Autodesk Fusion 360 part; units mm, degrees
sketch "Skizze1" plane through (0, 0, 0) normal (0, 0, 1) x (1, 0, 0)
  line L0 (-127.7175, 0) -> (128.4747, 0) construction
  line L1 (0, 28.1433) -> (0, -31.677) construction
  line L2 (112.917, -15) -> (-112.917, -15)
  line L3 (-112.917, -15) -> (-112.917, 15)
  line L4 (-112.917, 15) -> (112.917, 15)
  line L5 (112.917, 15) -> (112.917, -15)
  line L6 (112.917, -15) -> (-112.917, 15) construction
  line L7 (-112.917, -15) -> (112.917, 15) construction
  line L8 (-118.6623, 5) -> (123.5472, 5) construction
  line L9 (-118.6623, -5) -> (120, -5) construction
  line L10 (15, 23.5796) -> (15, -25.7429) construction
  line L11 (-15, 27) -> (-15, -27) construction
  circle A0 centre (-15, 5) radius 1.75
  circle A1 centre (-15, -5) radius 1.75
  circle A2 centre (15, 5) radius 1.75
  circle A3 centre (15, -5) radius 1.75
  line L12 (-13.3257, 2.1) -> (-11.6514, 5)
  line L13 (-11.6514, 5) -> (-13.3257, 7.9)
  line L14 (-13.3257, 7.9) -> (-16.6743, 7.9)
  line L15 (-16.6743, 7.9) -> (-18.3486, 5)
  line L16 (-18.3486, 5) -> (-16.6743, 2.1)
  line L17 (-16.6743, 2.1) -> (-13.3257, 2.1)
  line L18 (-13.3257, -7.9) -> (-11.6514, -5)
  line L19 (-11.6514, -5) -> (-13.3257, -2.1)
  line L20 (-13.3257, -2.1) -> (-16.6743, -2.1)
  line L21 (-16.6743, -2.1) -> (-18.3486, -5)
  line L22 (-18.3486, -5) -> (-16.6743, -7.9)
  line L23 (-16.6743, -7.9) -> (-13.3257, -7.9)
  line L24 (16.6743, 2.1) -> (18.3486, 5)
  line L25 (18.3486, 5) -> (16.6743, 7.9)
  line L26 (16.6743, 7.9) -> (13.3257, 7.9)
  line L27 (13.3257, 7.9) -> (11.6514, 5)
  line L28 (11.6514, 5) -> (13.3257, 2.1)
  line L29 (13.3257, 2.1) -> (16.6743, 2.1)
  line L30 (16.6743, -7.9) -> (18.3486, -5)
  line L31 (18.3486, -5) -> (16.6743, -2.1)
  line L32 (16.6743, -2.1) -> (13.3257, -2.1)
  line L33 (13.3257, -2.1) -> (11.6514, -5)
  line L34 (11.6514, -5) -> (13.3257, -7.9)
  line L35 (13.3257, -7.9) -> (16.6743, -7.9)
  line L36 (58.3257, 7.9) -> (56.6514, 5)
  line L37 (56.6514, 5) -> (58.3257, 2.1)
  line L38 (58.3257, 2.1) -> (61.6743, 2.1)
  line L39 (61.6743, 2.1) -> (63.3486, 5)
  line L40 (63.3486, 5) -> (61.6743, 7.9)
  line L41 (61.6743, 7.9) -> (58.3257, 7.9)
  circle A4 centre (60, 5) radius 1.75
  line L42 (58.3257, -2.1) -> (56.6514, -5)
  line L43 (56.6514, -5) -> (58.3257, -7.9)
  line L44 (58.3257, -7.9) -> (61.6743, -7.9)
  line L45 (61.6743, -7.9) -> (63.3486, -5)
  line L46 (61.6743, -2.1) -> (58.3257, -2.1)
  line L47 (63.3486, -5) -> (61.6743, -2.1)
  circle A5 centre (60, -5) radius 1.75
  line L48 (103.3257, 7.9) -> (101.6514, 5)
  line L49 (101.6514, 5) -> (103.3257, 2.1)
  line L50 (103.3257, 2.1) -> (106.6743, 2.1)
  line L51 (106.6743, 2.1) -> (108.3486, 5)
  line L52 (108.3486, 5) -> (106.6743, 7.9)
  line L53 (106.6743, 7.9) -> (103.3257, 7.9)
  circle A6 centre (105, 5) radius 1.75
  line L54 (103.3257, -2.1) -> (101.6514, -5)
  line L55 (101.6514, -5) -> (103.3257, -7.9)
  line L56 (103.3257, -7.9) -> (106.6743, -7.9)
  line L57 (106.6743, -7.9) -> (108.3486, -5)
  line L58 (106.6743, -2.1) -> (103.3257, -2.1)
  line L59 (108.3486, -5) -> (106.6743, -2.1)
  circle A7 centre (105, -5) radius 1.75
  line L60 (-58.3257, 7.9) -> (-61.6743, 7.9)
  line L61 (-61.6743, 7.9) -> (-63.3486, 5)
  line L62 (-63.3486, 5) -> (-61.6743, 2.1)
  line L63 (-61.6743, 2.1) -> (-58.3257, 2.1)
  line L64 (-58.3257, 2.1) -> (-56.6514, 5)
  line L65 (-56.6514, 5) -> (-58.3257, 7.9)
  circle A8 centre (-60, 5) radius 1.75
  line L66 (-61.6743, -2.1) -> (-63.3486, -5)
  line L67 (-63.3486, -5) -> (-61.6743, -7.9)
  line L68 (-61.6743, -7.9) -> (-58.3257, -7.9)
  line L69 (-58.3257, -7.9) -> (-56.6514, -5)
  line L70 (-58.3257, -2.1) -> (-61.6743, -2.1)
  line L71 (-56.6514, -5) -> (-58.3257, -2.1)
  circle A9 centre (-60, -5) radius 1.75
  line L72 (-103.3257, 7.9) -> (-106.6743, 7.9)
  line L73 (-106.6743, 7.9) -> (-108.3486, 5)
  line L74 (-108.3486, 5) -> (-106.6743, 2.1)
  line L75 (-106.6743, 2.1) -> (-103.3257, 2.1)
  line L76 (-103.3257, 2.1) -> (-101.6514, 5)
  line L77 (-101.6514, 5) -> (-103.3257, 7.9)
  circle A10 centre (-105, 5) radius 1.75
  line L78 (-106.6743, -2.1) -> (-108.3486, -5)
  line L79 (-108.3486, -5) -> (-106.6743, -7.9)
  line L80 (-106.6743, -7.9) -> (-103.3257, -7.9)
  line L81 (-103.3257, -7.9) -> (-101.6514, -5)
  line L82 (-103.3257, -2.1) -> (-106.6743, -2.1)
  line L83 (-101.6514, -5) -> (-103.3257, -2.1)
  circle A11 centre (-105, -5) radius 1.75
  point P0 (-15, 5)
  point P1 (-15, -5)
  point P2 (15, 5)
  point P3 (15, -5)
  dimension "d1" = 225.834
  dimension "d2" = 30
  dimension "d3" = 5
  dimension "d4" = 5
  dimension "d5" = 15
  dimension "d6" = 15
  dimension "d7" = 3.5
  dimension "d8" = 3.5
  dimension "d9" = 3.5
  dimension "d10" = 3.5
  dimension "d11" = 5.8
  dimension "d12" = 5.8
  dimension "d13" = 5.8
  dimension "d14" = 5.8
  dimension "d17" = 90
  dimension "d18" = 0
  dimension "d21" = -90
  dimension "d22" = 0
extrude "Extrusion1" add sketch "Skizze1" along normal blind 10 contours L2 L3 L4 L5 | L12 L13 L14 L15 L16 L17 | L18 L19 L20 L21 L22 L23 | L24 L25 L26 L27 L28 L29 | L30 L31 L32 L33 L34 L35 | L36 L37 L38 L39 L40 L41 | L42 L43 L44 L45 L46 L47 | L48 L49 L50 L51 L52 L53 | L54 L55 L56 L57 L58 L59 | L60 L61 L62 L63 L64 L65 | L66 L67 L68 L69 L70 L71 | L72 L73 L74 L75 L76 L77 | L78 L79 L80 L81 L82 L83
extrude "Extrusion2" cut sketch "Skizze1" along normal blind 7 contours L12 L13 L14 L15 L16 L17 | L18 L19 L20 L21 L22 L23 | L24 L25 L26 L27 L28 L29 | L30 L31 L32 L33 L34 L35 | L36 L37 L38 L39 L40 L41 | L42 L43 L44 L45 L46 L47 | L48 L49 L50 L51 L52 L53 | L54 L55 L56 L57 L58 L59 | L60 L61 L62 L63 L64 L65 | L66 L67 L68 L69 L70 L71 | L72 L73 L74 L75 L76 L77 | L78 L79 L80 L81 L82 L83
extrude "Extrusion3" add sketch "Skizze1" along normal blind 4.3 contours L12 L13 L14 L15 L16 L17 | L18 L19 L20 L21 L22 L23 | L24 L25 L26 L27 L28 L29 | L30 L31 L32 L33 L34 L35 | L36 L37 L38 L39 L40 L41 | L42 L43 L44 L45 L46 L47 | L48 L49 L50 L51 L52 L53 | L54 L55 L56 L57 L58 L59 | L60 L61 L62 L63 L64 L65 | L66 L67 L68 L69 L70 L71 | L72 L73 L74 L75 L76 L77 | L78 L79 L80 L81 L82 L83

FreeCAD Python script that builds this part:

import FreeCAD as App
import Part
import Sketcher
Q = App.Units.Quantity

doc = App.newDocument("Part")
body = doc.addObject("PartDesign::Body", "Body")

# Sketch on XY plane
sketch1 = body.newObject("Sketcher::SketchObject", "Sketch")
sketch1.AttachmentSupport = (doc.getObject("XY_Plane"), [""])
sketch1.MapMode = "FlatFace"
sketch1.addGeometry([
    Part.LineSegment(App.Vector(-112.917, -15, 0), App.Vector(112.917, -15, 0)),  # 0
    Part.LineSegment(App.Vector(112.917, -15, 0), App.Vector(112.917, 15, 0)),  # 1
    Part.LineSegment(App.Vector(112.917, 15, 0), App.Vector(-112.917, 15, 0)),  # 2
    Part.LineSegment(App.Vector(-112.917, 15, 0), App.Vector(-112.917, -15, 0)),  # 3
    Part.Circle(App.Vector(-105, -5, 0), App.Vector(0, 0, 1), 1.75),  # 4
    Part.Circle(App.Vector(-60, -5, 0), App.Vector(0, 0, 1), 1.75),  # 5
    Part.Circle(App.Vector(-15, -5, 0), App.Vector(0, 0, 1), 1.75),  # 6
    Part.Circle(App.Vector(15, -5, 0), App.Vector(0, 0, 1), 1.75),  # 7
    Part.Circle(App.Vector(60, -5, 0), App.Vector(0, 0, 1), 1.75),  # 8
    Part.Circle(App.Vector(105, -5, 0), App.Vector(0, 0, 1), 1.75),  # 9
    Part.Circle(App.Vector(-105, 5, 0), App.Vector(0, 0, 1), 1.75),  # 10
    Part.Circle(App.Vector(-60, 5, 0), App.Vector(0, 0, 1), 1.75),  # 11
    Part.Circle(App.Vector(-15, 5, 0), App.Vector(0, 0, 1), 1.75),  # 12
    Part.Circle(App.Vector(15, 5, 0), App.Vector(0, 0, 1), 1.75),  # 13
    Part.Circle(App.Vector(60, 5, 0), App.Vector(0, 0, 1), 1.75),  # 14
    Part.Circle(App.Vector(105, 5, 0), App.Vector(0, 0, 1), 1.75),  # 15
], False)
sketch1.addConstraint([
    Sketcher.Constraint("Coincident", 0, 2, 1, 1),
    Sketcher.Constraint("Coincident", 1, 2, 2, 1),
    Sketcher.Constraint("Coincident", 2, 2, 3, 1),
    Sketcher.Constraint("Coincident", 3, 2, 0, 1),
    Sketcher.Constraint("Horizontal", 0),
    Sketcher.Constraint("Vertical", 1),
    Sketcher.Constraint("Horizontal", 2),
    Sketcher.Constraint("Vertical", 3),
    Sketcher.Constraint("Equal", 4, 5),
    Sketcher.Constraint("Equal", 5, 6),
    Sketcher.Constraint("Equal", 6, 7),
    Sketcher.Constraint("Equal", 7, 8),
    Sketcher.Constraint("Equal", 8, 9),
    Sketcher.Constraint("Equal", 9, 10),
    Sketcher.Constraint("Equal", 10, 11),
    Sketcher.Constraint("Equal", 11, 12),
    Sketcher.Constraint("Equal", 12, 13),
    Sketcher.Constraint("Equal", 13, 14),
    Sketcher.Constraint("Equal", 14, 15),
    Sketcher.Constraint("Symmetric", 9, 3, 10, 3, -1, 1),
    Sketcher.Constraint("Symmetric", 8, 3, 11, 3, -1, 1),
    Sketcher.Constraint("Symmetric", 7, 3, 12, 3, -1, 1),
    Sketcher.Constraint("Symmetric", 6, 3, 13, 3, -1, 1),
    Sketcher.Constraint("Symmetric", 5, 3, 14, 3, -1, 1),
    Sketcher.Constraint("Symmetric", 4, 3, 15, 3, -1, 1),
    Sketcher.Constraint("Symmetric", 0, 2, 2, 2, -1, 1),
    Sketcher.Constraint("Symmetric", 6, 3, 7, 3, -2),
    Sketcher.Constraint("Symmetric", 5, 3, 8, 3, -2),
    Sketcher.Constraint("Symmetric", 4, 3, 9, 3, -2),
    Sketcher.Constraint("Horizontal", 4, 3, 5, 3),
    Sketcher.Constraint("Horizontal", 5, 3, 6, 3),
    Sketcher.Constraint("Diameter", 4, Q("3.5 mm")),
    Sketcher.Constraint("DistanceY", 1, 1, 1, 2, Q("30 mm")),
    Sketcher.Constraint("DistanceY", 4, 3, -1, 1, Q("5 mm")),
    Sketcher.Constraint("DistanceX", 6, 3, -1, 1, Q("15 mm")),
    Sketcher.Constraint("DistanceX", 4, 3, 6, 3, Q("90 mm")),
    Sketcher.Constraint("DistanceX", 0, 1, 0, 2, Q("225.834 mm")),
    Sketcher.Constraint("DistanceX", 5, 3, -1, 1, Q("60 mm")),
])
pad1 = body.newObject("PartDesign::Pad", "Pad")
pad1.Profile = sketch1
pad1.Length = 10

# Sketch on XY plane
sketch2 = body.newObject("Sketcher::SketchObject", "Sketch001")
sketch2.AttachmentSupport = (doc.getObject("XY_Plane"), [""])
sketch2.MapMode = "FlatFace"
sketch2.addGeometry([
    Part.LineSegment(App.Vector(-16.6743, 2.1, 0), App.Vector(-13.3257, 2.1, 0)),  # 0
    Part.LineSegment(App.Vector(-13.3257, 2.1, 0), App.Vector(-11.6514, 5, 0)),  # 1
    Part.LineSegment(App.Vector(-11.6514, 5, 0), App.Vector(-13.3257, 7.9, 0)),  # 2
    Part.LineSegment(App.Vector(-13.3257, 7.9, 0), App.Vector(-16.6743, 7.9, 0)),  # 3
    Part.LineSegment(App.Vector(-16.6743, 7.9, 0), App.Vector(-18.3486, 5, 0)),  # 4
    Part.LineSegment(App.Vector(-18.3486, 5, 0), App.Vector(-16.6743, 2.1, 0)),  # 5
    Part.Circle(App.Vector(-15, 5, 0), App.Vector(0, 0, 1), 1.75),  # 6
    Part.LineSegment(App.Vector(-16.6743, -7.9, 0), App.Vector(-13.3257, -7.9, 0)),  # 7
    Part.LineSegment(App.Vector(-13.3257, -7.9, 0), App.Vector(-11.6514, -5, 0)),  # 8
    Part.LineSegment(App.Vector(-11.6514, -5, 0), App.Vector(-13.3257, -2.1, 0)),  # 9
    Part.LineSegment(App.Vector(-13.3257, -2.1, 0), App.Vector(-16.6743, -2.1, 0)),  # 10
    Part.LineSegment(App.Vector(-16.6743, -2.1, 0), App.Vector(-18.3486, -5, 0)),  # 11
    Part.LineSegment(App.Vector(-18.3486, -5, 0), App.Vector(-16.6743, -7.9, 0)),  # 12
    Part.Circle(App.Vector(-15, -5, 0), App.Vector(0, 0, 1), 1.75),  # 13
    Part.LineSegment(App.Vector(13.3257, 2.1, 0), App.Vector(16.6743, 2.1, 0)),  # 14
    Part.LineSegment(App.Vector(16.6743, 2.1, 0), App.Vector(18.3486, 5, 0)),  # 15
    Part.LineSegment(App.Vector(18.3486, 5, 0), App.Vector(16.6743, 7.9, 0)),  # 16
    Part.LineSegment(App.Vector(16.6743, 7.9, 0), App.Vector(13.3257, 7.9, 0)),  # 17
    Part.LineSegment(App.Vector(13.3257, 7.9, 0), App.Vector(11.6514, 5, 0)),  # 18
    Part.LineSegment(App.Vector(11.6514, 5, 0), App.Vector(13.3257, 2.1, 0)),  # 19
    Part.Circle(App.Vector(15, 5, 0), App.Vector(0, 0, 1), 1.75),  # 20
    Part.LineSegment(App.Vector(13.3257, -7.9, 0), App.Vector(16.6743, -7.9, 0)),  # 21
    Part.LineSegment(App.Vector(16.6743, -7.9, 0), App.Vector(18.3486, -5, 0)),  # 22
    Part.LineSegment(App.Vector(18.3486, -5, 0), App.Vector(16.6743, -2.1, 0)),  # 23
    Part.LineSegment(App.Vector(16.6743, -2.1, 0), App.Vector(13.3257, -2.1, 0)),  # 24
    Part.LineSegment(App.Vector(13.3257, -2.1, 0), App.Vector(11.6514, -5, 0)),  # 25
    Part.LineSegment(App.Vector(11.6514, -5, 0), App.Vector(13.3257, -7.9, 0)),  # 26
    Part.Circle(App.Vector(15, -5, 0), App.Vector(0, 0, 1), 1.75),  # 27
    Part.LineSegment(App.Vector(61.6743, 7.9, 0), App.Vector(58.3257, 7.9, 0)),  # 28
    Part.LineSegment(App.Vector(58.3257, 7.9, 0), App.Vector(56.6514, 5, 0)),  # 29
    Part.LineSegment(App.Vector(56.6514, 5, 0), App.Vector(58.3257, 2.1, 0)),  # 30
    Part.LineSegment(App.Vector(58.3257, 2.1, 0), App.Vector(61.6743, 2.1, 0)),  # 31
    Part.LineSegment(App.Vector(61.6743, 2.1, 0), App.Vector(63.3486, 5, 0)),  # 32
    Part.LineSegment(App.Vector(63.3486, 5, 0), App.Vector(61.6743, 7.9, 0)),  # 33
    Part.Circle(App.Vector(60, 5, 0), App.Vector(0, 0, 1), 1.75),  # 34
    Part.LineSegment(App.Vector(61.6743, -2.1, 0), App.Vector(58.3257, -2.1, 0)),  # 35
    Part.LineSegment(App.Vector(58.3257, -2.1, 0), App.Vector(56.6514, -5, 0)),  # 36
    Part.LineSegment(App.Vector(56.6514, -5, 0), App.Vector(58.3257, -7.9, 0)),  # 37
    Part.LineSegment(App.Vector(58.3257, -7.9, 0), App.Vector(61.6743, -7.9, 0)),  # 38
    Part.LineSegment(App.Vector(61.6743, -7.9, 0), App.Vector(63.3486, -5, 0)),  # 39
    Part.LineSegment(App.Vector(63.3486, -5, 0), App.Vector(61.6743, -2.1, 0)),  # 40
    Part.Circle(App.Vector(60, -5, 0), App.Vector(0, 0, 1), 1.75),  # 41
    Part.LineSegment(App.Vector(106.6743, 7.9, 0), App.Vector(103.3257, 7.9, 0)),  # 42
    Part.LineSegment(App.Vector(103.3257, 7.9, 0), App.Vector(101.6514, 5, 0)),  # 43
    Part.LineSegment(App.Vector(101.6514, 5, 0), App.Vector(103.3257, 2.1, 0)),  # 44
    Part.LineSegment(App.Vector(103.3257, 2.1, 0), App.Vector(106.6743, 2.1, 0)),  # 45
    Part.LineSegment(App.Vector(106.6743, 2.1, 0), App.Vector(108.3486, 5, 0)),  # 46
    Part.LineSegment(App.Vector(108.3486, 5, 0), App.Vector(106.6743, 7.9, 0)),  # 47
    Part.Circle(App.Vector(105, 5, 0), App.Vector(0, 0, 1), 1.75),  # 48
    Part.LineSegment(App.Vector(106.6743, -2.1, 0), App.Vector(103.3257, -2.1, 0)),  # 49
    Part.LineSegment(App.Vector(103.3257, -2.1, 0), App.Vector(101.6514, -5, 0)),  # 50
    Part.LineSegment(App.Vector(101.6514, -5, 0), App.Vector(103.3257, -7.9, 0)),  # 51
    Part.LineSegment(App.Vector(103.3257, -7.9, 0), App.Vector(106.6743, -7.9, 0)),  # 52
    Part.LineSegment(App.Vector(106.6743, -7.9, 0), App.Vector(108.3486, -5, 0)),  # 53
    Part.LineSegment(App.Vector(108.3486, -5, 0), App.Vector(106.6743, -2.1, 0)),  # 54
    Part.Circle(App.Vector(105, -5, 0), App.Vector(0, 0, 1), 1.75),  # 55
    Part.LineSegment(App.Vector(-56.6514, 5, 0), App.Vector(-58.3257, 7.9, 0)),  # 56
    Part.LineSegment(App.Vector(-58.3257, 7.9, 0), App.Vector(-61.6743, 7.9, 0)),  # 57
    Part.LineSegment(App.Vector(-61.6743, 7.9, 0), App.Vector(-63.3486, 5, 0)),  # 58
    Part.LineSegment(App.Vector(-63.3486, 5, 0), App.Vector(-61.6743, 2.1, 0)),  # 59
    Part.LineSegment(App.Vector(-61.6743, 2.1, 0), App.Vector(-58.3257, 2.1, 0)),  # 60
    Part.LineSegment(App.Vector(-58.3257, 2.1, 0), App.Vector(-56.6514, 5, 0)),  # 61
    Part.Circle(App.Vector(-60, 5, 0), App.Vector(0, 0, 1), 1.75),  # 62
    Part.LineSegment(App.Vector(-58.3257, -2.1, 0), App.Vector(-61.6743, -2.1, 0)),  # 63
    Part.LineSegment(App.Vector(-61.6743, -2.1, 0), App.Vector(-63.3486, -5, 0)),  # 64
    Part.LineSegment(App.Vector(-63.3486, -5, 0), App.Vector(-61.6743, -7.9, 0)),  # 65
    Part.LineSegment(App.Vector(-61.6743, -7.9, 0), App.Vector(-58.3257, -7.9, 0)),  # 66
    Part.LineSegment(App.Vector(-58.3257, -7.9, 0), App.Vector(-56.6514, -5, 0)),  # 67
    Part.LineSegment(App.Vector(-56.6514, -5, 0), App.Vector(-58.3257, -2.1, 0)),  # 68
    Part.Circle(App.Vector(-60, -5, 0), App.Vector(0, 0, 1), 1.75),  # 69
    Part.LineSegment(App.Vector(-101.6514, 5, 0), App.Vector(-103.3257, 7.9, 0)),  # 70
    Part.LineSegment(App.Vector(-103.3257, 7.9, 0), App.Vector(-106.6743, 7.9, 0)),  # 71
    Part.LineSegment(App.Vector(-106.6743, 7.9, 0), App.Vector(-108.3486, 5, 0)),  # 72
    Part.LineSegment(App.Vector(-108.3486, 5, 0), App.Vector(-106.6743, 2.1, 0)),  # 73
    Part.LineSegment(App.Vector(-106.6743, 2.1, 0), App.Vector(-103.3257, 2.1, 0)),  # 74
    Part.LineSegment(App.Vector(-103.3257, 2.1, 0), App.Vector(-101.6514, 5, 0)),  # 75
    Part.Circle(App.Vector(-105, 5, 0), App.Vector(0, 0, 1), 1.75),  # 76
    Part.LineSegment(App.Vector(-103.3257, -2.1, 0), App.Vector(-106.6743, -2.1, 0)),  # 77
    Part.LineSegment(App.Vector(-106.6743, -2.1, 0), App.Vector(-108.3486, -5, 0)),  # 78
    Part.LineSegment(App.Vector(-108.3486, -5, 0), App.Vector(-106.6743, -7.9, 0)),  # 79
    Part.LineSegment(App.Vector(-106.6743, -7.9, 0), App.Vector(-103.3257, -7.9, 0)),  # 80
    Part.LineSegment(App.Vector(-103.3257, -7.9, 0), App.Vector(-101.6514, -5, 0)),  # 81
    Part.LineSegment(App.Vector(-101.6514, -5, 0), App.Vector(-103.3257, -2.1, 0)),  # 82
    Part.Circle(App.Vector(-105, -5, 0), App.Vector(0, 0, 1), 1.75),  # 83
], False)
sketch2.addConstraint([
    Sketcher.Constraint("Coincident", 0, 2, 1, 1),
    Sketcher.Constraint("Coincident", 1, 2, 2, 1),
    Sketcher.Constraint("Coincident", 2, 2, 3, 1),
    Sketcher.Constraint("Coincident", 3, 2, 4, 1),
    Sketcher.Constraint("Coincident", 4, 2, 5, 1),
    Sketcher.Constraint("Coincident", 5, 2, 0, 1),
    Sketcher.Constraint("Coincident", 7, 2, 8, 1),
    Sketcher.Constraint("Coincident", 8, 2, 9, 1),
    Sketcher.Constraint("Coincident", 9, 2, 10, 1),
    Sketcher.Constraint("Coincident", 10, 2, 11, 1),
    Sketcher.Constraint("Coincident", 11, 2, 12, 1),
    Sketcher.Constraint("Coincident", 12, 2, 7, 1),
    Sketcher.Constraint("Coincident", 14, 2, 15, 1),
    Sketcher.Constraint("Coincident", 15, 2, 16, 1),
    Sketcher.Constraint("Coincident", 16, 2, 17, 1),
    Sketcher.Constraint("Coincident", 17, 2, 18, 1),
    Sketcher.Constraint("Coincident", 18, 2, 19, 1),
    Sketcher.Constraint("Coincident", 19, 2, 14, 1),
    Sketcher.Constraint("Coincident", 21, 2, 22, 1),
    Sketcher.Constraint("Coincident", 22, 2, 23, 1),
    Sketcher.Constraint("Coincident", 23, 2, 24, 1),
    Sketcher.Constraint("Coincident", 24, 2, 25, 1),
    Sketcher.Constraint("Coincident", 25, 2, 26, 1),
    Sketcher.Constraint("Coincident", 26, 2, 21, 1),
    Sketcher.Constraint("Coincident", 28, 2, 29, 1),
    Sketcher.Constraint("Coincident", 29, 2, 30, 1),
    Sketcher.Constraint("Coincident", 30, 2, 31, 1),
    Sketcher.Constraint("Coincident", 31, 2, 32, 1),
    Sketcher.Constraint("Coincident", 32, 2, 33, 1),
    Sketcher.Constraint("Coincident", 33, 2, 28, 1),
    Sketcher.Constraint("Coincident", 35, 2, 36, 1),
    Sketcher.Constraint("Coincident", 36, 2, 37, 1),
    Sketcher.Constraint("Coincident", 37, 2, 38, 1),
    Sketcher.Constraint("Coincident", 38, 2, 39, 1),
    Sketcher.Constraint("Coincident", 39, 2, 40, 1),
    Sketcher.Constraint("Coincident", 40, 2, 35, 1),
    Sketcher.Constraint("Coincident", 42, 2, 43, 1),
    Sketcher.Constraint("Coincident", 43, 2, 44, 1),
    Sketcher.Constraint("Coincident", 44, 2, 45, 1),
    Sketcher.Constraint("Coincident", 45, 2, 46, 1),
    Sketcher.Constraint("Coincident", 46, 2, 47, 1),
    Sketcher.Constraint("Coincident", 47, 2, 42, 1),
    Sketcher.Constraint("Coincident", 49, 2, 50, 1),
    Sketcher.Constraint("Coincident", 50, 2, 51, 1),
    Sketcher.Constraint("Coincident", 51, 2, 52, 1),
    Sketcher.Constraint("Coincident", 52, 2, 53, 1),
    Sketcher.Constraint("Coincident", 53, 2, 54, 1),
    Sketcher.Constraint("Coincident", 54, 2, 49, 1),
    Sketcher.Constraint("Coincident", 56, 2, 57, 1),
    Sketcher.Constraint("Coincident", 57, 2, 58, 1),
    Sketcher.Constraint("Coincident", 58, 2, 59, 1),
    Sketcher.Constraint("Coincident", 59, 2, 60, 1),
    Sketcher.Constraint("Coincident", 60, 2, 61, 1),
    Sketcher.Constraint("Coincident", 61, 2, 56, 1),
    Sketcher.Constraint("Coincident", 63, 2, 64, 1),
    Sketcher.Constraint("Coincident", 64, 2, 65, 1),
    Sketcher.Constraint("Coincident", 65, 2, 66, 1),
    Sketcher.Constraint("Coincident", 66, 2, 67, 1),
    Sketcher.Constraint("Coincident", 67, 2, 68, 1),
    Sketcher.Constraint("Coincident", 68, 2, 63, 1),
    Sketcher.Constraint("Coincident", 70, 2, 71, 1),
    Sketcher.Constraint("Coincident", 71, 2, 72, 1),
    Sketcher.Constraint("Coincident", 72, 2, 73, 1),
    Sketcher.Constraint("Coincident", 73, 2, 74, 1),
    Sketcher.Constraint("Coincident", 74, 2, 75, 1),
    Sketcher.Constraint("Coincident", 75, 2, 70, 1),
    Sketcher.Constraint("Coincident", 77, 2, 78, 1),
    Sketcher.Constraint("Coincident", 78, 2, 79, 1),
    Sketcher.Constraint("Coincident", 79, 2, 80, 1),
    Sketcher.Constraint("Coincident", 80, 2, 81, 1),
    Sketcher.Constraint("Coincident", 81, 2, 82, 1),
    Sketcher.Constraint("Coincident", 82, 2, 77, 1),
    Sketcher.Constraint("Horizontal", 0),
    Sketcher.Constraint("Horizontal", 3),
    Sketcher.Constraint("Horizontal", 7),
    Sketcher.Constraint("Horizontal", 10),
    Sketcher.Constraint("Horizontal", 14),
    Sketcher.Constraint("Horizontal", 17),
    Sketcher.Constraint("Horizontal", 21),
    Sketcher.Constraint("Horizontal", 24),
    Sketcher.Constraint("Horizontal", 28),
    Sketcher.Constraint("Horizontal", 31),
    Sketcher.Constraint("Horizontal", 35),
    Sketcher.Constraint("Horizontal", 38),
    Sketcher.Constraint("Horizontal", 42),
    Sketcher.Constraint("Horizontal", 45),
    Sketcher.Constraint("Horizontal", 49),
    Sketcher.Constraint("Horizontal", 52),
    Sketcher.Constraint("Horizontal", 57),
    Sketcher.Constraint("Horizontal", 60),
    Sketcher.Constraint("Horizontal", 63),
    Sketcher.Constraint("Horizontal", 66),
    Sketcher.Constraint("Horizontal", 71),
    Sketcher.Constraint("Horizontal", 74),
    Sketcher.Constraint("Horizontal", 77),
    Sketcher.Constraint("Horizontal", 80),
    Sketcher.Constraint("Equal", 6, 13),
    Sketcher.Constraint("Equal", 13, 20),
    Sketcher.Constraint("Equal", 20, 27),
    Sketcher.Constraint("Equal", 27, 34),
    Sketcher.Constraint("Equal", 34, 41),
    Sketcher.Constraint("Equal", 41, 48),
    Sketcher.Constraint("Equal", 48, 55),
    Sketcher.Constraint("Equal", 55, 62),
    Sketcher.Constraint("Equal", 62, 69),
    Sketcher.Constraint("Equal", 69, 76),
    Sketcher.Constraint("Equal", 76, 83),
    Sketcher.Constraint("Symmetric", 13, 3, 20, 3, -1, 1),
    Sketcher.Constraint("Symmetric", 6, 3, 27, 3, -1, 1),
    Sketcher.Constraint("Symmetric", 41, 3, 62, 3, -1, 1),
    Sketcher.Constraint("Symmetric", 34, 3, 69, 3, -1, 1),
    Sketcher.Constraint("Symmetric", 55, 3, 76, 3, -1, 1),
    Sketcher.Constraint("Symmetric", 48, 3, 83, 3, -1, 1),
    Sketcher.Constraint("Symmetric", 10, 2, 14, 2, -1, 1),
    Sketcher.Constraint("Symmetric", 11, 2, 15, 2, -1, 1),
    Sketcher.Constraint("Symmetric", 12, 2, 16, 2, -1, 1),
    Sketcher.Constraint("Symmetric", 8, 2, 18, 2, -1, 1),
    Sketcher.Constraint("Symmetric", 3, 2, 21, 2, -1, 1),
    Sketcher.Constraint("Symmetric", 4, 2, 22, 2, -1, 1),
    Sketcher.Constraint("Symmetric", 5, 2, 23, 2, -1, 1),
    Sketcher.Constraint("Symmetric", 1, 2, 25, 2, -1, 1),
    Sketcher.Constraint("Symmetric", 37, 2, 56, 2, -1, 1),
    Sketcher.Constraint("Symmetric", 39, 2, 58, 2, -1, 1),
    Sketcher.Constraint("Symmetric", 40, 2, 59, 2, -1, 1),
    Sketcher.Constraint("Symmetric", 36, 2, 61, 2, -1, 1),
    Sketcher.Constraint("Symmetric", 31, 2, 63, 2, -1, 1),
    Sketcher.Constraint("Symmetric", 32, 2, 64, 2, -1, 1),
    Sketcher.Constraint("Symmetric", 33, 2, 65, 2, -1, 1),
    Sketcher.Constraint("Symmetric", 29, 2, 67, 2, -1, 1),
    Sketcher.Constraint("Symmetric", 51, 2, 70, 2, -1, 1),
    Sketcher.Constraint("Symmetric", 53, 2, 72, 2, -1, 1),
    Sketcher.Constraint("Symmetric", 54, 2, 73, 2, -1, 1),
    Sketcher.Constraint("Symmetric", 50, 2, 75, 2, -1, 1),
    Sketcher.Constraint("Symmetric", 45, 2, 77, 2, -1, 1),
    Sketcher.Constraint("Symmetric", 46, 2, 78, 2, -1, 1),
    Sketcher.Constraint("Symmetric", 47, 2, 79, 2, -1, 1),
    Sketcher.Constraint("Symmetric", 43, 2, 81, 2, -1, 1),
    Sketcher.Constraint("Symmetric", 6, 3, 20, 3, -2),
    Sketcher.Constraint("Symmetric", 34, 3, 62, 3, -2),
    Sketcher.Constraint("Symmetric", 48, 3, 76, 3, -2),
    Sketcher.Constraint("Symmetric", 5, 2, 14, 2, -2),
    Sketcher.Constraint("Symmetric", 4, 2, 15, 2, -2),
    Sketcher.Constraint("Symmetric", 3, 2, 16, 2, -2),
    Sketcher.Constraint("Symmetric", 1, 2, 18, 2, -2),
    Sketcher.Constraint("Symmetric", 28, 2, 56, 2, -2),
    Sketcher.Constraint("Symmetric", 32, 2, 58, 2, -2),
    Sketcher.Constraint("Symmetric", 31, 2, 59, 2, -2),
    Sketcher.Constraint("Symmetric", 29, 2, 61, 2, -2),
    Sketcher.Constraint("Symmetric", 42, 2, 70, 2, -2),
    Sketcher.Constraint("Symmetric", 46, 2, 72, 2, -2),
    Sketcher.Constraint("Symmetric", 45, 2, 73, 2, -2),
    Sketcher.Constraint("Symmetric", 43, 2, 75, 2, -2),
    Sketcher.Constraint("Parallel", 1, 4),
    Sketcher.Constraint("Parallel", 2, 5),
    Sketcher.Constraint("Parallel", 4, 8),
    Sketcher.Constraint("Parallel", 5, 9),
    Sketcher.Constraint("Parallel", 8, 11),
    Sketcher.Constraint("Parallel", 15, 18),
    Sketcher.Constraint("Parallel", 16, 19),
    Sketcher.Constraint("Parallel", 22, 25),
    Sketcher.Constraint("Parallel", 23, 26),
    Sketcher.Constraint("Parallel", 25, 29),
    Sketcher.Constraint("Parallel", 26, 30),
    Sketcher.Constraint("Parallel", 29, 32),
    Sketcher.Constraint("Parallel", 30, 33),
    Sketcher.Constraint("Parallel", 32, 36),
    Sketcher.Constraint("Parallel", 36, 39),
    Sketcher.Constraint("Parallel", 39, 43),
    Sketcher.Constraint("Parallel", 40, 44),
    Sketcher.Constraint("Parallel", 43, 46),
    Sketcher.Constraint("Parallel", 44, 47),
    Sketcher.Constraint("Parallel", 46, 50),
    Sketcher.Constraint("Parallel", 50, 53),
    Sketcher.Constraint("Parallel", 53, 58),
    Sketcher.Constraint("Parallel", 58, 61),
    Sketcher.Constraint("Parallel", 64, 67),
    Sketcher.Constraint("Parallel", 65, 68),
    Sketcher.Constraint("Parallel", 67, 72),
    Sketcher.Constraint("Parallel", 72, 75),
    Sketcher.Constraint("Parallel", 78, 81),
    Sketcher.Constraint("Parallel", 79, 82),
    Sketcher.Constraint("Horizontal", 20, 3, 34, 3),
    Sketcher.Constraint("Horizontal", 34, 3, 48, 3),
    Sketcher.Constraint("Horizontal", 76, 3, 1, 2),
    Sketcher.Constraint("Horizontal", 1, 2, 4, 2),
    Sketcher.Constraint("Horizontal", 17, 2, 28, 2),
    Sketcher.Constraint("Horizontal", 18, 2, 29, 2),
    Sketcher.Constraint("Horizontal", 19, 2, 30, 2),
    Sketcher.Constraint("Horizontal", 29, 2, 32, 2),
    Sketcher.Constraint("Horizontal", 33, 2, 42, 2),
    Sketcher.Constraint("Horizontal", 32, 2, 43, 2),
    Sketcher.Constraint("Horizontal", 31, 2, 44, 2),
    Sketcher.Constraint("Horizontal", 43, 2, 46, 2),
    Sketcher.Constraint("Vertical", 0, 2, 2, 2),
    Sketcher.Constraint("Equal", 24, 28),
    Sketcher.Constraint("Equal", 38, 42),
    Sketcher.Constraint("Diameter", 6, Q("3.5 mm")),
    Sketcher.Constraint("DistanceX", 6, 3, -1, 1, Q("15 mm")),
    Sketcher.Constraint("DistanceY", -1, 1, 6, 3, Q("5 mm")),
    Sketcher.Constraint("Angle", 1, Q("60.0002 deg")),
    Sketcher.Constraint("DistanceX", -1, 1, 34, 3, Q("60 mm")),
    Sketcher.Constraint("DistanceX", -1, 1, 48, 3, Q("105 mm")),
    Sketcher.Constraint("DistanceY", -1, 1, 0, 2, Q("2.1 mm")),
    Sketcher.Constraint("DistanceX", 0, 1, 0, 2, Q("3.3486 mm")),
    Sketcher.Constraint("DistanceX", 0, 2, -1, 1, Q("13.3257 mm")),
    Sketcher.Constraint("DistanceX", -1, 1, 28, 2, Q("58.3257 mm")),
    Sketcher.Constraint("DistanceX", -1, 1, 42, 2, Q("103.3257 mm")),
])
pocket1 = body.newObject("PartDesign::Pocket", "Pocket")
pocket1.Profile = sketch2
pocket1.Length = 7
pocket1.Reversed = True

# Sketch on XY plane
sketch3 = body.newObject("Sketcher::SketchObject", "Sketch002")
sketch3.AttachmentSupport = (doc.getObject("XY_Plane"), [""])
sketch3.MapMode = "FlatFace"
sketch3.addGeometry([
    Part.LineSegment(App.Vector(-16.6743, 2.1, 0), App.Vector(-13.3257, 2.1, 0)),  # 0
    Part.LineSegment(App.Vector(-13.3257, 2.1, 0), App.Vector(-11.6514, 5, 0)),  # 1
    Part.LineSegment(App.Vector(-11.6514, 5, 0), App.Vector(-13.3257, 7.9, 0)),  # 2
    Part.LineSegment(App.Vector(-13.3257, 7.9, 0), App.Vector(-16.6743, 7.9, 0)),  # 3
    Part.LineSegment(App.Vector(-16.6743, 7.9, 0), App.Vector(-18.3486, 5, 0)),  # 4
    Part.LineSegment(App.Vector(-18.3486, 5, 0), App.Vector(-16.6743, 2.1, 0)),  # 5
    Part.Circle(App.Vector(-15, 5, 0), App.Vector(0, 0, 1), 1.75),  # 6
    Part.LineSegment(App.Vector(-16.6743, -7.9, 0), App.Vector(-13.3257, -7.9, 0)),  # 7
    Part.LineSegment(App.Vector(-13.3257, -7.9, 0), App.Vector(-11.6514, -5, 0)),  # 8
    Part.LineSegment(App.Vector(-11.6514, -5, 0), App.Vector(-13.3257, -2.1, 0)),  # 9
    Part.LineSegment(App.Vector(-13.3257, -2.1, 0), App.Vector(-16.6743, -2.1, 0)),  # 10
    Part.LineSegment(App.Vector(-16.6743, -2.1, 0), App.Vector(-18.3486, -5, 0)),  # 11
    Part.LineSegment(App.Vector(-18.3486, -5, 0), App.Vector(-16.6743, -7.9, 0)),  # 12
    Part.Circle(App.Vector(-15, -5, 0), App.Vector(0, 0, 1), 1.75),  # 13
    Part.LineSegment(App.Vector(13.3257, 2.1, 0), App.Vector(16.6743, 2.1, 0)),  # 14
    Part.LineSegment(App.Vector(16.6743, 2.1, 0), App.Vector(18.3486, 5, 0)),  # 15
    Part.LineSegment(App.Vector(18.3486, 5, 0), App.Vector(16.6743, 7.9, 0)),  # 16
    Part.LineSegment(App.Vector(16.6743, 7.9, 0), App.Vector(13.3257, 7.9, 0)),  # 17
    Part.LineSegment(App.Vector(13.3257, 7.9, 0), App.Vector(11.6514, 5, 0)),  # 18
    Part.LineSegment(App.Vector(11.6514, 5, 0), App.Vector(13.3257, 2.1, 0)),  # 19
    Part.Circle(App.Vector(15, 5, 0), App.Vector(0, 0, 1), 1.75),  # 20
    Part.LineSegment(App.Vector(13.3257, -7.9, 0), App.Vector(16.6743, -7.9, 0)),  # 21
    Part.LineSegment(App.Vector(16.6743, -7.9, 0), App.Vector(18.3486, -5, 0)),  # 22
    Part.LineSegment(App.Vector(18.3486, -5, 0), App.Vector(16.6743, -2.1, 0)),  # 23
    Part.LineSegment(App.Vector(16.6743, -2.1, 0), App.Vector(13.3257, -2.1, 0)),  # 24
    Part.LineSegment(App.Vector(13.3257, -2.1, 0), App.Vector(11.6514, -5, 0)),  # 25
    Part.LineSegment(App.Vector(11.6514, -5, 0), App.Vector(13.3257, -7.9, 0)),  # 26
    Part.Circle(App.Vector(15, -5, 0), App.Vector(0, 0, 1), 1.75),  # 27
    Part.LineSegment(App.Vector(61.6743, 7.9, 0), App.Vector(58.3257, 7.9, 0)),  # 28
    Part.LineSegment(App.Vector(58.3257, 7.9, 0), App.Vector(56.6514, 5, 0)),  # 29
    Part.LineSegment(App.Vector(56.6514, 5, 0), App.Vector(58.3257, 2.1, 0)),  # 30
    Part.LineSegment(App.Vector(58.3257, 2.1, 0), App.Vector(61.6743, 2.1, 0)),  # 31
    Part.LineSegment(App.Vector(61.6743, 2.1, 0), App.Vector(63.3486, 5, 0)),  # 32
    Part.LineSegment(App.Vector(63.3486, 5, 0), App.Vector(61.6743, 7.9, 0)),  # 33
    Part.Circle(App.Vector(60, 5, 0), App.Vector(0, 0, 1), 1.75),  # 34
    Part.LineSegment(App.Vector(61.6743, -2.1, 0), App.Vector(58.3257, -2.1, 0)),  # 35
    Part.LineSegment(App.Vector(58.3257, -2.1, 0), App.Vector(56.6514, -5, 0)),  # 36
    Part.LineSegment(App.Vector(56.6514, -5, 0), App.Vector(58.3257, -7.9, 0)),  # 37
    Part.LineSegment(App.Vector(58.3257, -7.9, 0), App.Vector(61.6743, -7.9, 0)),  # 38
    Part.LineSegment(App.Vector(61.6743, -7.9, 0), App.Vector(63.3486, -5, 0)),  # 39
    Part.LineSegment(App.Vector(63.3486, -5, 0), App.Vector(61.6743, -2.1, 0)),  # 40
    Part.Circle(App.Vector(60, -5, 0), App.Vector(0, 0, 1), 1.75),  # 41
    Part.LineSegment(App.Vector(106.6743, 7.9, 0), App.Vector(103.3257, 7.9, 0)),  # 42
    Part.LineSegment(App.Vector(103.3257, 7.9, 0), App.Vector(101.6514, 5, 0)),  # 43
    Part.LineSegment(App.Vector(101.6514, 5, 0), App.Vector(103.3257, 2.1, 0)),  # 44
    Part.LineSegment(App.Vector(103.3257, 2.1, 0), App.Vector(106.6743, 2.1, 0)),  # 45
    Part.LineSegment(App.Vector(106.6743, 2.1, 0), App.Vector(108.3486, 5, 0)),  # 46
    Part.LineSegment(App.Vector(108.3486, 5, 0), App.Vector(106.6743, 7.9, 0)),  # 47
    Part.Circle(App.Vector(105, 5, 0), App.Vector(0, 0, 1), 1.75),  # 48
    Part.LineSegment(App.Vector(106.6743, -2.1, 0), App.Vector(103.3257, -2.1, 0)),  # 49
    Part.LineSegment(App.Vector(103.3257, -2.1, 0), App.Vector(101.6514, -5, 0)),  # 50
    Part.LineSegment(App.Vector(101.6514, -5, 0), App.Vector(103.3257, -7.9, 0)),  # 51
    Part.LineSegment(App.Vector(103.3257, -7.9, 0), App.Vector(106.6743, -7.9, 0)),  # 52
    Part.LineSegment(App.Vector(106.6743, -7.9, 0), App.Vector(108.3486, -5, 0)),  # 53
    Part.LineSegment(App.Vector(108.3486, -5, 0), App.Vector(106.6743, -2.1, 0)),  # 54
    Part.Circle(App.Vector(105, -5, 0), App.Vector(0, 0, 1), 1.75),  # 55
    Part.LineSegment(App.Vector(-56.6514, 5, 0), App.Vector(-58.3257, 7.9, 0)),  # 56
    Part.LineSegment(App.Vector(-58.3257, 7.9, 0), App.Vector(-61.6743, 7.9, 0)),  # 57
    Part.LineSegment(App.Vector(-61.6743, 7.9, 0), App.Vector(-63.3486, 5, 0)),  # 58
    Part.LineSegment(App.Vector(-63.3486, 5, 0), App.Vector(-61.6743, 2.1, 0)),  # 59
    Part.LineSegment(App.Vector(-61.6743, 2.1, 0), App.Vector(-58.3257, 2.1, 0)),  # 60
    Part.LineSegment(App.Vector(-58.3257, 2.1, 0), App.Vector(-56.6514, 5, 0)),  # 61
    Part.Circle(App.Vector(-60, 5, 0), App.Vector(0, 0, 1), 1.75),  # 62
    Part.LineSegment(App.Vector(-58.3257, -2.1, 0), App.Vector(-61.6743, -2.1, 0)),  # 63
    Part.LineSegment(App.Vector(-61.6743, -2.1, 0), App.Vector(-63.3486, -5, 0)),  # 64
    Part.LineSegment(App.Vector(-63.3486, -5, 0), App.Vector(-61.6743, -7.9, 0)),  # 65
    Part.LineSegment(App.Vector(-61.6743, -7.9, 0), App.Vector(-58.3257, -7.9, 0)),  # 66
    Part.LineSegment(App.Vector(-58.3257, -7.9, 0), App.Vector(-56.6514, -5, 0)),  # 67
    Part.LineSegment(App.Vector(-56.6514, -5, 0), App.Vector(-58.3257, -2.1, 0)),  # 68
    Part.Circle(App.Vector(-60, -5, 0), App.Vector(0, 0, 1), 1.75),  # 69
    Part.LineSegment(App.Vector(-101.6514, 5, 0), App.Vector(-103.3257, 7.9, 0)),  # 70
    Part.LineSegment(App.Vector(-103.3257, 7.9, 0), App.Vector(-106.6743, 7.9, 0)),  # 71
    Part.LineSegment(App.Vector(-106.6743, 7.9, 0), App.Vector(-108.3486, 5, 0)),  # 72
    Part.LineSegment(App.Vector(-108.3486, 5, 0), App.Vector(-106.6743, 2.1, 0)),  # 73
    Part.LineSegment(App.Vector(-106.6743, 2.1, 0), App.Vector(-103.3257, 2.1, 0)),  # 74
    Part.LineSegment(App.Vector(-103.3257, 2.1, 0), App.Vector(-101.6514, 5, 0)),  # 75
    Part.Circle(App.Vector(-105, 5, 0), App.Vector(0, 0, 1), 1.75),  # 76
    Part.LineSegment(App.Vector(-103.3257, -2.1, 0), App.Vector(-106.6743, -2.1, 0)),  # 77
    Part.LineSegment(App.Vector(-106.6743, -2.1, 0), App.Vector(-108.3486, -5, 0)),  # 78
    Part.LineSegment(App.Vector(-108.3486, -5, 0), App.Vector(-106.6743, -7.9, 0)),  # 79
    Part.LineSegment(App.Vector(-106.6743, -7.9, 0), App.Vector(-103.3257, -7.9, 0)),  # 80
    Part.LineSegment(App.Vector(-103.3257, -7.9, 0), App.Vector(-101.6514, -5, 0)),  # 81
    Part.LineSegment(App.Vector(-101.6514, -5, 0), App.Vector(-103.3257, -2.1, 0)),  # 82
    Part.Circle(App.Vector(-105, -5, 0), App.Vector(0, 0, 1), 1.75),  # 83
], False)
sketch3.addConstraint([
    Sketcher.Constraint("Coincident", 0, 2, 1, 1),
    Sketcher.Constraint("Coincident", 1, 2, 2, 1),
    Sketcher.Constraint("Coincident", 2, 2, 3, 1),
    Sketcher.Constraint("Coincident", 3, 2, 4, 1),
    Sketcher.Constraint("Coincident", 4, 2, 5, 1),
    Sketcher.Constraint("Coincident", 5, 2, 0, 1),
    Sketcher.Constraint("Coincident", 7, 2, 8, 1),
    Sketcher.Constraint("Coincident", 8, 2, 9, 1),
    Sketcher.Constraint("Coincident", 9, 2, 10, 1),
    Sketcher.Constraint("Coincident", 10, 2, 11, 1),
    Sketcher.Constraint("Coincident", 11, 2, 12, 1),
    Sketcher.Constraint("Coincident", 12, 2, 7, 1),
    Sketcher.Constraint("Coincident", 14, 2, 15, 1),
    Sketcher.Constraint("Coincident", 15, 2, 16, 1),
    Sketcher.Constraint("Coincident", 16, 2, 17, 1),
    Sketcher.Constraint("Coincident", 17, 2, 18, 1),
    Sketcher.Constraint("Coincident", 18, 2, 19, 1),
    Sketcher.Constraint("Coincident", 19, 2, 14, 1),
    Sketcher.Constraint("Coincident", 21, 2, 22, 1),
    Sketcher.Constraint("Coincident", 22, 2, 23, 1),
    Sketcher.Constraint("Coincident", 23, 2, 24, 1),
    Sketcher.Constraint("Coincident", 24, 2, 25, 1),
    Sketcher.Constraint("Coincident", 25, 2, 26, 1),
    Sketcher.Constraint("Coincident", 26, 2, 21, 1),
    Sketcher.Constraint("Coincident", 28, 2, 29, 1),
    Sketcher.Constraint("Coincident", 29, 2, 30, 1),
    Sketcher.Constraint("Coincident", 30, 2, 31, 1),
    Sketcher.Constraint("Coincident", 31, 2, 32, 1),
    Sketcher.Constraint("Coincident", 32, 2, 33, 1),
    Sketcher.Constraint("Coincident", 33, 2, 28, 1),
    Sketcher.Constraint("Coincident", 35, 2, 36, 1),
    Sketcher.Constraint("Coincident", 36, 2, 37, 1),
    Sketcher.Constraint("Coincident", 37, 2, 38, 1),
    Sketcher.Constraint("Coincident", 38, 2, 39, 1),
    Sketcher.Constraint("Coincident", 39, 2, 40, 1),
    Sketcher.Constraint("Coincident", 40, 2, 35, 1),
    Sketcher.Constraint("Coincident", 42, 2, 43, 1),
    Sketcher.Constraint("Coincident", 43, 2, 44, 1),
    Sketcher.Constraint("Coincident", 44, 2, 45, 1),
    Sketcher.Constraint("Coincident", 45, 2, 46, 1),
    Sketcher.Constraint("Coincident", 46, 2, 47, 1),
    Sketcher.Constraint("Coincident", 47, 2, 42, 1),
    Sketcher.Constraint("Coincident", 49, 2, 50, 1),
    Sketcher.Constraint("Coincident", 50, 2, 51, 1),
    Sketcher.Constraint("Coincident", 51, 2, 52, 1),
    Sketcher.Constraint("Coincident", 52, 2, 53, 1),
    Sketcher.Constraint("Coincident", 53, 2, 54, 1),
    Sketcher.Constraint("Coincident", 54, 2, 49, 1),
    Sketcher.Constraint("Coincident", 56, 2, 57, 1),
    Sketcher.Constraint("Coincident", 57, 2, 58, 1),
    Sketcher.Constraint("Coincident", 58, 2, 59, 1),
    Sketcher.Constraint("Coincident", 59, 2, 60, 1),
    Sketcher.Constraint("Coincident", 60, 2, 61, 1),
    Sketcher.Constraint("Coincident", 61, 2, 56, 1),
    Sketcher.Constraint("Coincident", 63, 2, 64, 1),
    Sketcher.Constraint("Coincident", 64, 2, 65, 1),
    Sketcher.Constraint("Coincident", 65, 2, 66, 1),
    Sketcher.Constraint("Coincident", 66, 2, 67, 1),
    Sketcher.Constraint("Coincident", 67, 2, 68, 1),
    Sketcher.Constraint("Coincident", 68, 2, 63, 1),
    Sketcher.Constraint("Coincident", 70, 2, 71, 1),
    Sketcher.Constraint("Coincident", 71, 2, 72, 1),
    Sketcher.Constraint("Coincident", 72, 2, 73, 1),
    Sketcher.Constraint("Coincident", 73, 2, 74, 1),
    Sketcher.Constraint("Coincident", 74, 2, 75, 1),
    Sketcher.Constraint("Coincident", 75, 2, 70, 1),
    Sketcher.Constraint("Coincident", 77, 2, 78, 1),
    Sketcher.Constraint("Coincident", 78, 2, 79, 1),
    Sketcher.Constraint("Coincident", 79, 2, 80, 1),
    Sketcher.Constraint("Coincident", 80, 2, 81, 1),
    Sketcher.Constraint("Coincident", 81, 2, 82, 1),
    Sketcher.Constraint("Coincident", 82, 2, 77, 1),
    Sketcher.Constraint("Horizontal", 0),
    Sketcher.Constraint("Horizontal", 3),
    Sketcher.Constraint("Horizontal", 7),
    Sketcher.Constraint("Horizontal", 10),
    Sketcher.Constraint("Horizontal", 14),
    Sketcher.Constraint("Horizontal", 17),
    Sketcher.Constraint("Horizontal", 21),
    Sketcher.Constraint("Horizontal", 24),
    Sketcher.Constraint("Horizontal", 28),
    Sketcher.Constraint("Horizontal", 31),
    Sketcher.Constraint("Horizontal", 35),
    Sketcher.Constraint("Horizontal", 38),
    Sketcher.Constraint("Horizontal", 42),
    Sketcher.Constraint("Horizontal", 45),
    Sketcher.Constraint("Horizontal", 49),
    Sketcher.Constraint("Horizontal", 52),
    Sketcher.Constraint("Horizontal", 57),
    Sketcher.Constraint("Horizontal", 60),
    Sketcher.Constraint("Horizontal", 63),
    Sketcher.Constraint("Horizontal", 66),
    Sketcher.Constraint("Horizontal", 71),
    Sketcher.Constraint("Horizontal", 74),
    Sketcher.Constraint("Horizontal", 77),
    Sketcher.Constraint("Horizontal", 80),
    Sketcher.Constraint("Equal", 6, 13),
    Sketcher.Constraint("Equal", 13, 20),
    Sketcher.Constraint("Equal", 20, 27),
    Sketcher.Constraint("Equal", 27, 34),
    Sketcher.Constraint("Equal", 34, 41),
    Sketcher.Constraint("Equal", 41, 48),
    Sketcher.Constraint("Equal", 48, 55),
    Sketcher.Constraint("Equal", 55, 62),
    Sketcher.Constraint("Equal", 62, 69),
    Sketcher.Constraint("Equal", 69, 76),
    Sketcher.Constraint("Equal", 76, 83),
    Sketcher.Constraint("Symmetric", 13, 3, 20, 3, -1, 1),
    Sketcher.Constraint("Symmetric", 6, 3, 27, 3, -1, 1),
    Sketcher.Constraint("Symmetric", 41, 3, 62, 3, -1, 1),
    Sketcher.Constraint("Symmetric", 34, 3, 69, 3, -1, 1),
    Sketcher.Constraint("Symmetric", 55, 3, 76, 3, -1, 1),
    Sketcher.Constraint("Symmetric", 48, 3, 83, 3, -1, 1),
    Sketcher.Constraint("Symmetric", 10, 2, 14, 2, -1, 1),
    Sketcher.Constraint("Symmetric", 11, 2, 15, 2, -1, 1),
    Sketcher.Constraint("Symmetric", 12, 2, 16, 2, -1, 1),
    Sketcher.Constraint("Symmetric", 8, 2, 18, 2, -1, 1),
    Sketcher.Constraint("Symmetric", 3, 2, 21, 2, -1, 1),
    Sketcher.Constraint("Symmetric", 4, 2, 22, 2, -1, 1),
    Sketcher.Constraint("Symmetric", 5, 2, 23, 2, -1, 1),
    Sketcher.Constraint("Symmetric", 1, 2, 25, 2, -1, 1),
    Sketcher.Constraint("Symmetric", 37, 2, 56, 2, -1, 1),
    Sketcher.Constraint("Symmetric", 39, 2, 58, 2, -1, 1),
    Sketcher.Constraint("Symmetric", 40, 2, 59, 2, -1, 1),
    Sketcher.Constraint("Symmetric", 36, 2, 61, 2, -1, 1),
    Sketcher.Constraint("Symmetric", 31, 2, 63, 2, -1, 1),
    Sketcher.Constraint("Symmetric", 32, 2, 64, 2, -1, 1),
    Sketcher.Constraint("Symmetric", 33, 2, 65, 2, -1, 1),
    Sketcher.Constraint("Symmetric", 29, 2, 67, 2, -1, 1),
    Sketcher.Constraint("Symmetric", 51, 2, 70, 2, -1, 1),
    Sketcher.Constraint("Symmetric", 53, 2, 72, 2, -1, 1),
    Sketcher.Constraint("Symmetric", 54, 2, 73, 2, -1, 1),
    Sketcher.Constraint("Symmetric", 50, 2, 75, 2, -1, 1),
    Sketcher.Constraint("Symmetric", 45, 2, 77, 2, -1, 1),
    Sketcher.Constraint("Symmetric", 46, 2, 78, 2, -1, 1),
    Sketcher.Constraint("Symmetric", 47, 2, 79, 2, -1, 1),
    Sketcher.Constraint("Symmetric", 43, 2, 81, 2, -1, 1),
    Sketcher.Constraint("Symmetric", 6, 3, 20, 3, -2),
    Sketcher.Constraint("Symmetric", 34, 3, 62, 3, -2),
    Sketcher.Constraint("Symmetric", 48, 3, 76, 3, -2),
    Sketcher.Constraint("Symmetric", 5, 2, 14, 2, -2),
    Sketcher.Constraint("Symmetric", 4, 2, 15, 2, -2),
    Sketcher.Constraint("Symmetric", 3, 2, 16, 2, -2),
    Sketcher.Constraint("Symmetric", 1, 2, 18, 2, -2),
    Sketcher.Constraint("Symmetric", 28, 2, 56, 2, -2),
    Sketcher.Constraint("Symmetric", 32, 2, 58, 2, -2),
    Sketcher.Constraint("Symmetric", 31, 2, 59, 2, -2),
    Sketcher.Constraint("Symmetric", 29, 2, 61, 2, -2),
    Sketcher.Constraint("Symmetric", 42, 2, 70, 2, -2),
    Sketcher.Constraint("Symmetric", 46, 2, 72, 2, -2),
    Sketcher.Constraint("Symmetric", 45, 2, 73, 2, -2),
    Sketcher.Constraint("Symmetric", 43, 2, 75, 2, -2),
    Sketcher.Constraint("Parallel", 1, 4),
    Sketcher.Constraint("Parallel", 2, 5),
    Sketcher.Constraint("Parallel", 4, 8),
    Sketcher.Constraint("Parallel", 5, 9),
    Sketcher.Constraint("Parallel", 8, 11),
    Sketcher.Constraint("Parallel", 15, 18),
    Sketcher.Constraint("Parallel", 16, 19),
    Sketcher.Constraint("Parallel", 22, 25),
    Sketcher.Constraint("Parallel", 23, 26),
    Sketcher.Constraint("Parallel", 25, 29),
    Sketcher.Constraint("Parallel", 26, 30),
    Sketcher.Constraint("Parallel", 29, 32),
    Sketcher.Constraint("Parallel", 30, 33),
    Sketcher.Constraint("Parallel", 32, 36),
    Sketcher.Constraint("Parallel", 36, 39),
    Sketcher.Constraint("Parallel", 39, 43),
    Sketcher.Constraint("Parallel", 40, 44),
    Sketcher.Constraint("Parallel", 43, 46),
    Sketcher.Constraint("Parallel", 44, 47),
    Sketcher.Constraint("Parallel", 46, 50),
    Sketcher.Constraint("Parallel", 50, 53),
    Sketcher.Constraint("Parallel", 53, 58),
    Sketcher.Constraint("Parallel", 58, 61),
    Sketcher.Constraint("Parallel", 64, 67),
    Sketcher.Constraint("Parallel", 65, 68),
    Sketcher.Constraint("Parallel", 67, 72),
    Sketcher.Constraint("Parallel", 72, 75),
    Sketcher.Constraint("Parallel", 78, 81),
    Sketcher.Constraint("Parallel", 79, 82),
    Sketcher.Constraint("Horizontal", 20, 3, 34, 3),
    Sketcher.Constraint("Horizontal", 34, 3, 48, 3),
    Sketcher.Constraint("Horizontal", 76, 3, 1, 2),
    Sketcher.Constraint("Horizontal", 1, 2, 4, 2),
    Sketcher.Constraint("Horizontal", 17, 2, 28, 2),
    Sketcher.Constraint("Horizontal", 18, 2, 29, 2),
    Sketcher.Constraint("Horizontal", 19, 2, 30, 2),
    Sketcher.Constraint("Horizontal", 29, 2, 32, 2),
    Sketcher.Constraint("Horizontal", 33, 2, 42, 2),
    Sketcher.Constraint("Horizontal", 32, 2, 43, 2),
    Sketcher.Constraint("Horizontal", 31, 2, 44, 2),
    Sketcher.Constraint("Horizontal", 43, 2, 46, 2),
    Sketcher.Constraint("Vertical", 0, 2, 2, 2),
    Sketcher.Constraint("Equal", 24, 28),
    Sketcher.Constraint("Equal", 38, 42),
    Sketcher.Constraint("Diameter", 6, Q("3.5 mm")),
    Sketcher.Constraint("DistanceX", 6, 3, -1, 1, Q("15 mm")),
    Sketcher.Constraint("DistanceY", -1, 1, 6, 3, Q("5 mm")),
    Sketcher.Constraint("Angle", 1, Q("60.0002 deg")),
    Sketcher.Constraint("DistanceX", -1, 1, 34, 3, Q("60 mm")),
    Sketcher.Constraint("DistanceX", -1, 1, 48, 3, Q("105 mm")),
    Sketcher.Constraint("DistanceY", -1, 1, 0, 2, Q("2.1 mm")),
    Sketcher.Constraint("DistanceX", 0, 1, 0, 2, Q("3.3486 mm")),
    Sketcher.Constraint("DistanceX", 0, 2, -1, 1, Q("13.3257 mm")),
    Sketcher.Constraint("DistanceX", -1, 1, 28, 2, Q("58.3257 mm")),
    Sketcher.Constraint("DistanceX", -1, 1, 42, 2, Q("103.3257 mm")),
])
pad2 = body.newObject("PartDesign::Pad", "Pad001")
pad2.Profile = sketch3
pad2.Length = 4.3

doc.recompute()
